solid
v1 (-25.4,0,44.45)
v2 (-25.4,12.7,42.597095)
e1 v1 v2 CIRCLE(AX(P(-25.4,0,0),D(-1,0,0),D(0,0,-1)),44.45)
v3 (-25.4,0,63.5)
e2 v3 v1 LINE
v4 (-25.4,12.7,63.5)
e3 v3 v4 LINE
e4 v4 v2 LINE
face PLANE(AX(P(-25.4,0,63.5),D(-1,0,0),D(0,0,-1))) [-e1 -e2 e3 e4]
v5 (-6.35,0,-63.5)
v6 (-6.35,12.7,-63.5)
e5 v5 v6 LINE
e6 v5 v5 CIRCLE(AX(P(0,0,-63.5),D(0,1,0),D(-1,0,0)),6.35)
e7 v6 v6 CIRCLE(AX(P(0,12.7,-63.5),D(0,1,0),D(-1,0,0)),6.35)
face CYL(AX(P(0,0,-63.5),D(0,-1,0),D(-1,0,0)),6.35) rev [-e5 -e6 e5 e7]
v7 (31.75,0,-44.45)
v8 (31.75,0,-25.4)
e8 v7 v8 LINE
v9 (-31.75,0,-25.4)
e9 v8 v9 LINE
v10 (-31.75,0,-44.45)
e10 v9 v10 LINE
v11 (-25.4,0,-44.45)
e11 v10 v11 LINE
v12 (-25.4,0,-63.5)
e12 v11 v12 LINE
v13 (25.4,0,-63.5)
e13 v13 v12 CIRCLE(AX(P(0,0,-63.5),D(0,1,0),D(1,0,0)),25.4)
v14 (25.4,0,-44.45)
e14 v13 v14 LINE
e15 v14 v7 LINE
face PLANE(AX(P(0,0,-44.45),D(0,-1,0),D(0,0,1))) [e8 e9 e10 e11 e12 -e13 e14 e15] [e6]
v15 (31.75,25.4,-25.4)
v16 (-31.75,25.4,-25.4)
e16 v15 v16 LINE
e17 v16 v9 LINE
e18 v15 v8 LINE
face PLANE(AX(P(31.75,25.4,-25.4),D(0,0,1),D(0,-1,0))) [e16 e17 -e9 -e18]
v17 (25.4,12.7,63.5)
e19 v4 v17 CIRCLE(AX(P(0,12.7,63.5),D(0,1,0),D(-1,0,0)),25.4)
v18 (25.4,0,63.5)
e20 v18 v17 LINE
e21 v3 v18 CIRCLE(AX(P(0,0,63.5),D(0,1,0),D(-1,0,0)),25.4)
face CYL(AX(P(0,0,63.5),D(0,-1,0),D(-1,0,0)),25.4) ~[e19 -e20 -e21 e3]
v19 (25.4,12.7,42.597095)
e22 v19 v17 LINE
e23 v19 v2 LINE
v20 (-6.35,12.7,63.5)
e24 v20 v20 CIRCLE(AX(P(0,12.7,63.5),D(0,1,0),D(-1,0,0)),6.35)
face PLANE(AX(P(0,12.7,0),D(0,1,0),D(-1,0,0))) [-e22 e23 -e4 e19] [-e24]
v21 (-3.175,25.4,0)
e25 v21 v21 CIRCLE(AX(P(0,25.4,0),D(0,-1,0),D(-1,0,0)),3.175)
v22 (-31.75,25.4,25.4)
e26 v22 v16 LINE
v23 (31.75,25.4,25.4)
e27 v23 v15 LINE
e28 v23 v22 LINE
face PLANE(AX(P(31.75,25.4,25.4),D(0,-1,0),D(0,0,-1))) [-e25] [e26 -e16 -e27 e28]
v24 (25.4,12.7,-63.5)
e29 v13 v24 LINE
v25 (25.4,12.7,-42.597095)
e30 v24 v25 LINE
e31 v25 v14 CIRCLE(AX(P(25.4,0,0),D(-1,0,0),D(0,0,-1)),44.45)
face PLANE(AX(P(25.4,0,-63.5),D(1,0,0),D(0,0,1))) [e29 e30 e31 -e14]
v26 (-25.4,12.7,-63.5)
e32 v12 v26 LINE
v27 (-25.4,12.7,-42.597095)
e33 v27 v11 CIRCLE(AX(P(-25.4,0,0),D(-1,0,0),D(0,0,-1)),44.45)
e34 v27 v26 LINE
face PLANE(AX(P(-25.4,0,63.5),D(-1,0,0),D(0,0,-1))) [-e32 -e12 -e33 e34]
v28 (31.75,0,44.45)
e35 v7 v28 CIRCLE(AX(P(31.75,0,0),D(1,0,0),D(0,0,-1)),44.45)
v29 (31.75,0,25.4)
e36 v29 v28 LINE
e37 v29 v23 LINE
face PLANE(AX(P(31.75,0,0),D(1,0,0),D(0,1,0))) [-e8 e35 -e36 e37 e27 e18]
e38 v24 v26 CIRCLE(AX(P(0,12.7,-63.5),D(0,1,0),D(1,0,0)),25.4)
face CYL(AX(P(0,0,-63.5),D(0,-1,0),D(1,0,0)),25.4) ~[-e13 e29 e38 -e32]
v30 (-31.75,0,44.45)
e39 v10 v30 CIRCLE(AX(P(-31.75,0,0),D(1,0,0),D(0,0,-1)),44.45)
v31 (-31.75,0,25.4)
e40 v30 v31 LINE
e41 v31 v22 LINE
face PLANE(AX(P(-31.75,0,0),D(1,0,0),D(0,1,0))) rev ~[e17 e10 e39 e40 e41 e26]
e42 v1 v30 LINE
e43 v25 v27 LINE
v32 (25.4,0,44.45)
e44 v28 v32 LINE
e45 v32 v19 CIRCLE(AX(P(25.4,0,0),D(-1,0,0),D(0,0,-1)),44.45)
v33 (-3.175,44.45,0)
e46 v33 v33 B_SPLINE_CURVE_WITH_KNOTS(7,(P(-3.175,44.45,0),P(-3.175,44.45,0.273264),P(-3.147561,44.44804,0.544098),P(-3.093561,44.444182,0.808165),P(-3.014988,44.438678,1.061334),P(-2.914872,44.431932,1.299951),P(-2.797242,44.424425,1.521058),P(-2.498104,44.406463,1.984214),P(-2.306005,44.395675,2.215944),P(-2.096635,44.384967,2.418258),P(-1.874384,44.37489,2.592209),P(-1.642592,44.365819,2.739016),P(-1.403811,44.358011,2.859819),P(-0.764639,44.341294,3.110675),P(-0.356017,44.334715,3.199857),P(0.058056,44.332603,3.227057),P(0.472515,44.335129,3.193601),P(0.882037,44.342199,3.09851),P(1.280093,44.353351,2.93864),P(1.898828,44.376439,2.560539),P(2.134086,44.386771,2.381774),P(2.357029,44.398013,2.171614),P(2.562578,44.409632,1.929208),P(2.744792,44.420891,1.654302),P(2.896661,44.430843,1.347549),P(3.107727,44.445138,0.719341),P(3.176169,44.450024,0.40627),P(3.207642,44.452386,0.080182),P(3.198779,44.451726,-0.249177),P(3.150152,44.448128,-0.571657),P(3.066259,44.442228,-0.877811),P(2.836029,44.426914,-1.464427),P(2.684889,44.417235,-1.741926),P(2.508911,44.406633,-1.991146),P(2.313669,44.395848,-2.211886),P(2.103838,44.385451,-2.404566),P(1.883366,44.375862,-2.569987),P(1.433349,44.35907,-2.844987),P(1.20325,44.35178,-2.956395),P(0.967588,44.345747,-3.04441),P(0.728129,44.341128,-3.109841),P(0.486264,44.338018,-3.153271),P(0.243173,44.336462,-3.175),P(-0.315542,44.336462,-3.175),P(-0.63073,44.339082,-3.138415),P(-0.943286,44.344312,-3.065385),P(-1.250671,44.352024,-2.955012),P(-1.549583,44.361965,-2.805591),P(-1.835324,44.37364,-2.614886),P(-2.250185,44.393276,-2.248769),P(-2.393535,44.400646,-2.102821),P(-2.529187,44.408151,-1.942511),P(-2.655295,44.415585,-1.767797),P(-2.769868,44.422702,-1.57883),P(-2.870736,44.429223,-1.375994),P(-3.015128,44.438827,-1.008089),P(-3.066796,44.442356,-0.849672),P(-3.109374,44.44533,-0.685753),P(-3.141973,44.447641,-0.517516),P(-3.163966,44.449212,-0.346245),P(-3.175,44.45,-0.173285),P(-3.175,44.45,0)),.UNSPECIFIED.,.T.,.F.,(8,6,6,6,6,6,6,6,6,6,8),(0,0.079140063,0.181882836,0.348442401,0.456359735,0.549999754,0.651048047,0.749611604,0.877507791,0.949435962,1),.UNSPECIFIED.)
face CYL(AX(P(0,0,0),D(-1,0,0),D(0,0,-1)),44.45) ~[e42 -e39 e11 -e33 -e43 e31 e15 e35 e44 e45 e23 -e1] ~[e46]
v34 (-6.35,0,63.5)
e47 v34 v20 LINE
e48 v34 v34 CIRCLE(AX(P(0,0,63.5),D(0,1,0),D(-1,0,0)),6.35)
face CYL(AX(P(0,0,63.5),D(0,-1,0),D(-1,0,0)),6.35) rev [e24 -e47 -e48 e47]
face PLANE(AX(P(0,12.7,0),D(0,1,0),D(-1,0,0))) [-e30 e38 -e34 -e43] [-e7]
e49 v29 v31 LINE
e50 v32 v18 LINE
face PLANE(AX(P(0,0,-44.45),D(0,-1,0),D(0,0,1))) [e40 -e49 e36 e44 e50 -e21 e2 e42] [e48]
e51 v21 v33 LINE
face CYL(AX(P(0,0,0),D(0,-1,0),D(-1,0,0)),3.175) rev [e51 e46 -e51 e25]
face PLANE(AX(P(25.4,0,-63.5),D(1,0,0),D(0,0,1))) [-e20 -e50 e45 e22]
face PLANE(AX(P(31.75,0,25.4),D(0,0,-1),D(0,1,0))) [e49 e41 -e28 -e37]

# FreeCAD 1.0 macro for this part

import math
import FreeCAD as App
import Part
import Sketcher
from FreeCAD import Vector
Q = App.Units.Quantity


def add_polygon(sketch, points):
    """Adds a closed chain of lines whose ends are joined by coincident constraints."""
    first, n = sketch.GeometryCount, len(points)
    for a, b in zip(points, points[1:] + points[:1]):
        sketch.addGeometry(Part.LineSegment(App.Vector(*a, 0), App.Vector(*b, 0)), False)
    for i in range(n):
        sketch.addConstraint(Sketcher.Constraint("Coincident", first + i, 2, first + (i + 1) % n, 1))

doc = App.newDocument("Part")
params = doc.addObject("Spreadsheet::Sheet", "Params")
for row, (alias, value) in enumerate([
    ("sketch1_radius", "1 in"),
    ("sketch1_diameter", "0.5 in"),
    ("sketch1_height", "5 in"),
    ("pad1_length", "0.5 in"),
    ("sketch2_radius", "1.75 in"),
    ("sketch3_radius", "1.75 in"),
    ("pad2_length", "2.5 in"),
    ("sketch4_diameter", "0.25 in"),
    ("sketch5_width", "1 in"),
    ("sketch5_height", "2 in"),
], start=1):
    params.set(f"A{row}", alias)
    params.set(f"B{row}", "=" + value)
    params.setAlias(f"B{row}", alias)

body = doc.addObject("PartDesign::Body", "Body")
body.AllowCompound = True

# Sketch on XZ plane
sketch1 = body.newObject("Sketcher::SketchObject", "Sketch")
sketch1.AttachmentSupport = (doc.getObject("XZ_Plane"), [""])
sketch1.MapMode = "FlatFace"
sketch1.addGeometry(Part.LineSegment(Vector(-25, -64, 0), Vector(-25, 64, 0)), False)
sketch1.addGeometry(Part.ArcOfCircle(Part.Circle(Vector(0, 64, 0), Vector(0, 0, 1), 25), math.radians(0), math.radians(180)), False)
sketch1.addGeometry(Part.LineSegment(Vector(25, 64, 0), Vector(25, -64, 0)), False)
sketch1.addGeometry(Part.ArcOfCircle(Part.Circle(Vector(0, -64, 0), Vector(0, 0, 1), 25), math.radians(180), math.radians(360)), False)
sketch1.addGeometry(Part.Circle(Vector(0, -64, 0), Vector(0, 0, 1), 6), False)
sketch1.addGeometry(Part.Circle(Vector(0, 64, 0), Vector(0, 0, 1), 6), False)
sketch1.addConstraint(Sketcher.Constraint("Tangent", 0, 2, 1, 2))
sketch1.addConstraint(Sketcher.Constraint("Tangent", 1, 1, 2, 1))
sketch1.addConstraint(Sketcher.Constraint("Tangent", 2, 2, 3, 2))
sketch1.addConstraint(Sketcher.Constraint("Tangent", 3, 1, 0, 1))
sketch1.addConstraint(Sketcher.Constraint("Vertical", 0))
sketch1.addConstraint(Sketcher.Constraint("Vertical", 2))
sketch1.addConstraint(Sketcher.Constraint("Coincident", 4, 3, 3, 3))
sketch1.addConstraint(Sketcher.Constraint("Coincident", 5, 3, 1, 3))
sketch1.addConstraint(Sketcher.Constraint("Equal", 4, 5))
sketch1.addConstraint(Sketcher.Constraint("Symmetric", 1, 3, 3, 3, -1, 1))
sketch1.addConstraint(Sketcher.Constraint("Radius", 1, Q("1 in")))
sketch1.addConstraint(Sketcher.Constraint("Diameter", 4, Q("0.5 in")))
sketch1.addConstraint(Sketcher.Constraint("DistanceY", 0, 1, 0, 2, Q("5 in")))
sketch1.setExpression("Constraints[10]", "Params.sketch1_radius")
sketch1.setExpression("Constraints[11]", "Params.sketch1_diameter")
sketch1.setExpression("Constraints[12]", "Params.sketch1_height")
pad1 = body.newObject("PartDesign::Pad", "Pad")
pad1.Profile = sketch1
pad1.setExpression("Length", "Params.pad1_length")
pad1.Reversed = True

# Sketch on YZ plane
sketch2 = body.newObject("Sketcher::SketchObject", "Sketch001")
sketch2.AttachmentSupport = (doc.getObject("YZ_Plane"), [""])
sketch2.MapMode = "FlatFace"
sketch2.addGeometry(Part.ArcOfCircle(Part.Circle(Vector(0, 0, 0), Vector(0, 0, 1), 44), math.radians(-90), math.radians(90)), False)
sketch2.addGeometry(Part.LineSegment(Vector(0, 44, 0), Vector(0, -44, 0)), False)
sketch2.addConstraint(Sketcher.Constraint("Coincident", 0, 1, 1, 2))
sketch2.addConstraint(Sketcher.Constraint("Coincident", 1, 1, 0, 2))
sketch2.addConstraint(Sketcher.Constraint("Vertical", 1))
sketch2.addConstraint(Sketcher.Constraint("Coincident", 0, 3, -1, 1))
sketch2.addConstraint(Sketcher.Constraint("PointOnObject", 0, 1, -2))
sketch2.addConstraint(Sketcher.Constraint("Radius", 0, Q("1.75 in")))
sketch2.setExpression("Constraints[5]", "Params.sketch2_radius")
pocket1 = body.newObject("PartDesign::Pocket", "Pocket")
pocket1.Profile = sketch2
pocket1.Type = "ThroughAll"
pocket1.Midplane = True

# Sketch on YZ plane
sketch3 = body.newObject("Sketcher::SketchObject", "Sketch002")
sketch3.AttachmentSupport = (doc.getObject("YZ_Plane"), [""])
sketch3.MapMode = "FlatFace"
sketch3.addGeometry(Part.ArcOfCircle(Part.Circle(Vector(0, 0, 0), Vector(0, 0, 1), 44), math.radians(-90), math.radians(90)), False)
sketch3.addGeometry(Part.LineSegment(Vector(0, 44, 0), Vector(0, -44, 0)), False)
sketch3.addConstraint(Sketcher.Constraint("Coincident", 0, 1, 1, 2))
sketch3.addConstraint(Sketcher.Constraint("Coincident", 1, 1, 0, 2))
sketch3.addConstraint(Sketcher.Constraint("Vertical", 1))
sketch3.addConstraint(Sketcher.Constraint("Coincident", 0, 3, -1, 1))
sketch3.addConstraint(Sketcher.Constraint("PointOnObject", 0, 1, -2))
sketch3.addConstraint(Sketcher.Constraint("Radius", 0, Q("1.75 in")))
sketch3.setExpression("Constraints[5]", "Params.sketch3_radius")
pad2 = body.newObject("PartDesign::Pad", "Pad001")
pad2.Profile = sketch3
pad2.setExpression("Length", "Params.pad2_length")
pad2.Midplane = True

# Sketch on XZ plane
sketch4 = body.newObject("Sketcher::SketchObject", "Sketch003")
sketch4.AttachmentSupport = (doc.getObject("XZ_Plane"), [""])
sketch4.MapMode = "FlatFace"
sketch4.addGeometry(Part.Circle(Vector(0, 0, 0), Vector(0, 0, 1), 3.2), False)
sketch4.addConstraint(Sketcher.Constraint("Coincident", 0, 3, -1, 1))
sketch4.addConstraint(Sketcher.Constraint("Diameter", 0, Q("0.25 in")))
sketch4.setExpression("Constraints[1]", "Params.sketch4_diameter")
pocket2 = body.newObject("PartDesign::Pocket", "Pocket001")
pocket2.Profile = sketch4
pocket2.Type = "ThroughAll"

# Sketch on YZ plane
sketch5 = body.newObject("Sketcher::SketchObject", "Sketch004")
sketch5.AttachmentSupport = (doc.getObject("YZ_Plane"), [""])
sketch5.MapMode = "FlatFace"
sketch5.AttachmentOffset = App.Placement(Vector(0, 0, 1.25 * 25.4), App.Rotation())
add_polygon(sketch5, [(25, -25), (25, 25), (0, 25), (0, -25)])  # lines 0-3
sketch5.addConstraint(Sketcher.Constraint("Vertical", 0))
sketch5.addConstraint(Sketcher.Constraint("Horizontal", 1))
sketch5.addConstraint(Sketcher.Constraint("Vertical", 2))
sketch5.addConstraint(Sketcher.Constraint("Horizontal", 3))
sketch5.addConstraint(Sketcher.Constraint("Symmetric", 1, 2, 2, 2, -1, 1))
sketch5.addConstraint(Sketcher.Constraint("DistanceX", 1, 2, 1, 1, Q("1 in")))
sketch5.addConstraint(Sketcher.Constraint("DistanceY", 0, 1, 0, 2, Q("2 in")))
sketch5.setExpression("Constraints[9]", "Params.sketch5_width")
sketch5.setExpression("Constraints[10]", "Params.sketch5_height")
pocket3 = body.newObject("PartDesign::Pocket", "Pocket002")
pocket3.Profile = sketch5
pocket3.Type = "ThroughAll"

doc.recompute()
